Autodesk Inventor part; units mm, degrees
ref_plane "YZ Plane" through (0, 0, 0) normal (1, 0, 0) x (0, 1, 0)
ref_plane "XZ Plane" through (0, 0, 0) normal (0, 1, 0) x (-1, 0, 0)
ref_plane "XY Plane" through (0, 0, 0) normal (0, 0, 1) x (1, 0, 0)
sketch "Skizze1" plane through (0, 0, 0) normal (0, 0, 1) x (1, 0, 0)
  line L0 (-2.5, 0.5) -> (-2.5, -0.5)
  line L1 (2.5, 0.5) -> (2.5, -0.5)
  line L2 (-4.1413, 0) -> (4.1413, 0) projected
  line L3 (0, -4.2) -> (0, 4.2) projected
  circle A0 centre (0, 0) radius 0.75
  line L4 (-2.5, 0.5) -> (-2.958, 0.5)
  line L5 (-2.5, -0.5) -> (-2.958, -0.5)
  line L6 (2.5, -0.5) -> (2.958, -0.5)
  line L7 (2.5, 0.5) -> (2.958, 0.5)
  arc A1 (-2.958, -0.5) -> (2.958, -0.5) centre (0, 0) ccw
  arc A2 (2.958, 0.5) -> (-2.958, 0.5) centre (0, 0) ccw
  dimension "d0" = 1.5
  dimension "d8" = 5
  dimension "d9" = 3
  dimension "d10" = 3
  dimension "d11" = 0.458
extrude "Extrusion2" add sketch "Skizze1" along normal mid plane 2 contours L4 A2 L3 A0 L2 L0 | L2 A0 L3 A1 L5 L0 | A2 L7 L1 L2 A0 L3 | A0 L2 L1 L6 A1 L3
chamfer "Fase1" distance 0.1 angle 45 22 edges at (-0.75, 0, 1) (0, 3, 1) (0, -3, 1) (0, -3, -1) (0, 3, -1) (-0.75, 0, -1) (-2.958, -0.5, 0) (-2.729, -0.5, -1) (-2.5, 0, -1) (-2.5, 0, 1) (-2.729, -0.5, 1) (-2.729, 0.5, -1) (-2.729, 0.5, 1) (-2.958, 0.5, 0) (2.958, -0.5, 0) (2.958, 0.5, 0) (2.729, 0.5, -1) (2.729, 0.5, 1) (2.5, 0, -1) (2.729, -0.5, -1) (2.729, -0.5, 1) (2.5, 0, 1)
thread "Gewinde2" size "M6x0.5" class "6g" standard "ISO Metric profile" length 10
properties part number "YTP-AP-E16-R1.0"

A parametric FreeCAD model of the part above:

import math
import FreeCAD as App
import Part
import Sketcher
from FreeCAD import Vector
Q = App.Units.Quantity


def edges_at(feature, points):
    """Names of the edges that pass closest to the given points."""
    edges = feature.Shape.Edges
    near = lambda p: min(range(len(edges)), key=lambda i: edges[i].distToShape(Part.Vertex(*p))[0])
    return sorted({f"Edge{near(p) + 1}" for p in points})

doc = App.newDocument("Part")
body = doc.addObject("PartDesign::Body", "Body")

# Sketch on XY plane
sketch1 = doc.addObject("Sketcher::SketchObject", "Sketch")
body.addObject(sketch1)
sketch1.AttachmentSupport = (doc.XY_Plane, [""])
sketch1.MapMode = "FlatFace"
sketch1.addGeometry(Part.LineSegment(Vector(-2.96, 0.5, 0), Vector(-2.5, 0.5, 0)), False)
sketch1.addGeometry(Part.LineSegment(Vector(-2.5, 0.5, 0), Vector(-2.5, -0.5, 0)), False)
sketch1.addGeometry(Part.LineSegment(Vector(-2.5, -0.5, 0), Vector(-2.96, -0.5, 0)), False)
sketch1.addGeometry(Part.ArcOfCircle(Part.Circle(Vector(0, 0, 0), Vector(0, 0, 1), 3), math.radians(-170), math.radians(-10)), False)
sketch1.addGeometry(Part.LineSegment(Vector(2.96, -0.5, 0), Vector(2.5, -0.5, 0)), False)
sketch1.addGeometry(Part.LineSegment(Vector(2.5, -0.5, 0), Vector(2.5, 0.5, 0)), False)
sketch1.addGeometry(Part.LineSegment(Vector(2.5, 0.5, 0), Vector(2.96, 0.5, 0)), False)
sketch1.addGeometry(Part.ArcOfCircle(Part.Circle(Vector(0, 0, 0), Vector(0, 0, 1), 3), math.radians(10), math.radians(170)), False)
sketch1.addGeometry(Part.Circle(Vector(0, 0, 0), Vector(0, 0, 1), 0.75), False)
sketch1.addConstraint(Sketcher.Constraint("Coincident", 0, 2, 1, 1))
sketch1.addConstraint(Sketcher.Constraint("Coincident", 1, 2, 2, 1))
sketch1.addConstraint(Sketcher.Constraint("Coincident", 2, 2, 3, 1))
sketch1.addConstraint(Sketcher.Constraint("Coincident", 3, 2, 4, 1))
sketch1.addConstraint(Sketcher.Constraint("Coincident", 4, 2, 5, 1))
sketch1.addConstraint(Sketcher.Constraint("Coincident", 5, 2, 6, 1))
sketch1.addConstraint(Sketcher.Constraint("Coincident", 6, 2, 7, 1))
sketch1.addConstraint(Sketcher.Constraint("Coincident", 7, 2, 0, 1))
sketch1.addConstraint(Sketcher.Constraint("Horizontal", 0))
sketch1.addConstraint(Sketcher.Constraint("Vertical", 1))
sketch1.addConstraint(Sketcher.Constraint("Horizontal", 2))
sketch1.addConstraint(Sketcher.Constraint("Horizontal", 4))
sketch1.addConstraint(Sketcher.Constraint("Vertical", 5))
sketch1.addConstraint(Sketcher.Constraint("Horizontal", 6))
sketch1.addConstraint(Sketcher.Constraint("Coincident", 3, 3, -1, 1))
sketch1.addConstraint(Sketcher.Constraint("Coincident", 7, 3, -1, 1))
sketch1.addConstraint(Sketcher.Constraint("Coincident", 8, 3, -1, 1))
sketch1.addConstraint(Sketcher.Constraint("Equal", 3, 7))
sketch1.addConstraint(Sketcher.Constraint("Symmetric", 0, 2, 4, 2, -1, 1))
sketch1.addConstraint(Sketcher.Constraint("Horizontal", 2, 2, 3, 2))
sketch1.addConstraint(Sketcher.Constraint("Horizontal", 0, 2, 5, 2))
sketch1.addConstraint(Sketcher.Constraint("Radius", 3, Q("3 mm")))
sketch1.addConstraint(Sketcher.Constraint("Diameter", 8, Q("1.5 mm")))
sketch1.addConstraint(Sketcher.Constraint("DistanceX", 1, 2, 4, 2, Q("5 mm")))
sketch1.addConstraint(Sketcher.Constraint("DistanceX", 0, 1, 0, 2, Q("0.458 mm")))
pad1 = doc.addObject("PartDesign::Pad", "Pad")
body.addObject(pad1)
pad1.Profile = sketch1
pad1.Length = 2
pad1.Midplane = True
doc.recompute()

chamfer = doc.addObject("PartDesign::Chamfer", "Chamfer")
body.addObject(chamfer)
chamfer.Base = (pad1, edges_at(pad1, [
    (-0.75, 0, 1),
    (0, 3, 1),
    (0, -3, 1),
    (0, -3, -1),
    (0, 3, -1),
    (-0.75, 0, -1),
    (-2.958, -0.5, 0),
    (-2.729, -0.5, -1),
    (-2.5, 0, -1),
    (-2.5, 0, 1),
    (-2.729, -0.5, 1),
    (-2.729, 0.5, -1),
    (-2.729, 0.5, 1),
    (-2.958, 0.5, 0),
    (2.958, -0.5, 0),
    (2.958, 0.5, 0),
    (2.729, 0.5, -1),
    (2.729, 0.5, 1),
    (2.5, 0, -1),
    (2.729, -0.5, -1),
    (2.729, -0.5, 1),
    (2.5, 0, 1),
]))
chamfer.Size = 0.1

doc.recompute()
